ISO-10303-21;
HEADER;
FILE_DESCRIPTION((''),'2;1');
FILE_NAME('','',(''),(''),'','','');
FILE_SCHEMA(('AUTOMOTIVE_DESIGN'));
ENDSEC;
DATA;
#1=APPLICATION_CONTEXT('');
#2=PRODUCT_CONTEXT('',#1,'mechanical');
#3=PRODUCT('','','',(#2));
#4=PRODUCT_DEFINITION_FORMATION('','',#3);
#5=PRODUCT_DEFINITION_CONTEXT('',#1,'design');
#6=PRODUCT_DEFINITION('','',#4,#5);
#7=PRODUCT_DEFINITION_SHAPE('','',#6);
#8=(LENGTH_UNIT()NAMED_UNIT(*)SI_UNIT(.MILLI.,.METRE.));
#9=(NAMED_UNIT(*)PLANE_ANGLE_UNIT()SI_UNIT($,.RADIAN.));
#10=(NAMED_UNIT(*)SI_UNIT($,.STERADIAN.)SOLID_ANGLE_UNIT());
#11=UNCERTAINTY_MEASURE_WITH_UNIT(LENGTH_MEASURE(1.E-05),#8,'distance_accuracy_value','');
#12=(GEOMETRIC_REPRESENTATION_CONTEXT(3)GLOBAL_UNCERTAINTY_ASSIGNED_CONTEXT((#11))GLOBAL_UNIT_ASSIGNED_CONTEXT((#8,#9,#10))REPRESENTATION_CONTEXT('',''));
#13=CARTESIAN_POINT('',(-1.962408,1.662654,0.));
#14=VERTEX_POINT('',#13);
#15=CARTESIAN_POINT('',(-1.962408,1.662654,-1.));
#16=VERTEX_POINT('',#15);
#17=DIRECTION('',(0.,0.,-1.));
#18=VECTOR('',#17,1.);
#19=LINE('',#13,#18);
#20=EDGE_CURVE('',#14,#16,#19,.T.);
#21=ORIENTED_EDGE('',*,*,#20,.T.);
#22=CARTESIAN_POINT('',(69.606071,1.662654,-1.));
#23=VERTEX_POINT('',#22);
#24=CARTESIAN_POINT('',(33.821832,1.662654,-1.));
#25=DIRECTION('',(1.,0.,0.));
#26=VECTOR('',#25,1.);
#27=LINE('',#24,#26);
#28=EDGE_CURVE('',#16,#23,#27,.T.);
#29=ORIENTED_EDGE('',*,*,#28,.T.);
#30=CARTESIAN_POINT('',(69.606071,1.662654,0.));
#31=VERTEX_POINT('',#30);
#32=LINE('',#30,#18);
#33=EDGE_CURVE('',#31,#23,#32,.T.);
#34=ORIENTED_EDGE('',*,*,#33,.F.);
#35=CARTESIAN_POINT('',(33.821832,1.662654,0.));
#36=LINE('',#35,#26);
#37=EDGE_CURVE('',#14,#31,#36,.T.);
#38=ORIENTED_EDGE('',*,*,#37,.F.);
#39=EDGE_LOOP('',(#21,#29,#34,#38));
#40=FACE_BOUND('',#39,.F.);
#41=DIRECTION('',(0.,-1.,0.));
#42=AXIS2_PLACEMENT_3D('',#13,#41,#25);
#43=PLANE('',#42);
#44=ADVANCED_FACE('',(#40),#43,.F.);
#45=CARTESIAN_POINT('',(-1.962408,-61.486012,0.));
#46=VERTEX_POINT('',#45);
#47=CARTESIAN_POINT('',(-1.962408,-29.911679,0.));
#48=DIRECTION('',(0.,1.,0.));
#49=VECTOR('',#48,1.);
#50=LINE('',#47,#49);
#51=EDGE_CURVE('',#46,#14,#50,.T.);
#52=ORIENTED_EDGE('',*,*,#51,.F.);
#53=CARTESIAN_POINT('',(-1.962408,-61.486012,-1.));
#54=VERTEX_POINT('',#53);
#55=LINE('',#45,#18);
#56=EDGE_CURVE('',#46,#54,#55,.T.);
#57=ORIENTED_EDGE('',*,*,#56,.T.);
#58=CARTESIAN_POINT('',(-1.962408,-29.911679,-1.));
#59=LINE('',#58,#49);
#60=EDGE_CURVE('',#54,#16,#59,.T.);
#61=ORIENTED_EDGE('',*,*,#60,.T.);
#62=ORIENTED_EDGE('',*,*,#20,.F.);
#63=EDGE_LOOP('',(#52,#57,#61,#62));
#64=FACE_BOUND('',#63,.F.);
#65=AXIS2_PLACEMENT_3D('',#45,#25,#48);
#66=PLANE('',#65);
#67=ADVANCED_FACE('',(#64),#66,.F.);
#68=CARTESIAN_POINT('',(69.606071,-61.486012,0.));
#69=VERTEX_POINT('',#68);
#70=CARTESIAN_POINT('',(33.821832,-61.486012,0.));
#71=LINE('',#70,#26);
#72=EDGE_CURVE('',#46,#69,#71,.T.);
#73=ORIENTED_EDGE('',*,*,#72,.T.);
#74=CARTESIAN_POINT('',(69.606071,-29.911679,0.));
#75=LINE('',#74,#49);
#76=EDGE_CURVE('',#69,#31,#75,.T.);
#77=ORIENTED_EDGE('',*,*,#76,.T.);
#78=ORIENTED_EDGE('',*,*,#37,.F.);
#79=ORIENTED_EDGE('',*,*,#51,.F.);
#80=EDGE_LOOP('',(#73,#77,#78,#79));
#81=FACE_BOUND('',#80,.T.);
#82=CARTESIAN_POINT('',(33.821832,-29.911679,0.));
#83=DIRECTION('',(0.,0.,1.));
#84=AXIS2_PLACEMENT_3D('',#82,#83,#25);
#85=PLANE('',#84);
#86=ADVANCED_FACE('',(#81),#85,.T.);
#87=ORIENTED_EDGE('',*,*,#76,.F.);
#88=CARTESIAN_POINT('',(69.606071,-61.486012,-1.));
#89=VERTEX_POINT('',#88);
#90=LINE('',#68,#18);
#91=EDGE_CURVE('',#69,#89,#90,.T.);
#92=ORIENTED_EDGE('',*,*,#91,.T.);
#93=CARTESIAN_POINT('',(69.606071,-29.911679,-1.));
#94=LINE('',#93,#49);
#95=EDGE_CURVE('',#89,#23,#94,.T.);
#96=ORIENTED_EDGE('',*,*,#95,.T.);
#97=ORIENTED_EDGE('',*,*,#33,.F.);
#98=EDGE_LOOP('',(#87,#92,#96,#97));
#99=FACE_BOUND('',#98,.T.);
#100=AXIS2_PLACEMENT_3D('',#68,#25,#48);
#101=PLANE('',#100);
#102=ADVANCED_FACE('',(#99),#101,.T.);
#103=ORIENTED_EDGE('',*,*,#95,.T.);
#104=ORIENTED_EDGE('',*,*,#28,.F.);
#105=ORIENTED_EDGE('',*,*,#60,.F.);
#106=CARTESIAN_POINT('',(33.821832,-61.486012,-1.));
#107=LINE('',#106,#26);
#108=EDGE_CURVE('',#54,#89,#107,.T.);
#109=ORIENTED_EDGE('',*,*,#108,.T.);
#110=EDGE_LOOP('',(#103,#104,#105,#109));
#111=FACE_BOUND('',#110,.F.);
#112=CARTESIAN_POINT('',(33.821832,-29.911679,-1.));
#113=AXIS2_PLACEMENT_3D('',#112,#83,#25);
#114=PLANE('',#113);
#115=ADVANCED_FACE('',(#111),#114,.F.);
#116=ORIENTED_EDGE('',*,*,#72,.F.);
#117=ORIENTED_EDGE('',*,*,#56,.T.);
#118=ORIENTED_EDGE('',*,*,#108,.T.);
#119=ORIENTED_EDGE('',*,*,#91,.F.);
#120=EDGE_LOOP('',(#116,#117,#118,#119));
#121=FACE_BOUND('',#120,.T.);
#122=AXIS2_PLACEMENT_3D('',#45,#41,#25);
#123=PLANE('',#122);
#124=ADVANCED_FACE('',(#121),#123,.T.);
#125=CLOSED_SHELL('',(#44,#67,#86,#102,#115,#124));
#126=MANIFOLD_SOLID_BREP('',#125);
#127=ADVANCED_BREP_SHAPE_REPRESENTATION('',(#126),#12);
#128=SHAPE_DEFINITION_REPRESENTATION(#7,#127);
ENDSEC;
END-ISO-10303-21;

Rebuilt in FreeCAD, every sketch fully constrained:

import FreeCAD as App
import Part
import Sketcher
from FreeCAD import Vector
Q = App.Units.Quantity


def add_polygon(sketch, points):
    """Adds a closed chain of lines whose ends are joined by coincident constraints."""
    first, n = sketch.GeometryCount, len(points)
    for a, b in zip(points, points[1:] + points[:1]):
        sketch.addGeometry(Part.LineSegment(App.Vector(*a, 0), App.Vector(*b, 0)), False)
    for i in range(n):
        sketch.addConstraint(Sketcher.Constraint("Coincident", first + i, 2, first + (i + 1) % n, 1))

doc = App.newDocument("Part")
body = doc.addObject("PartDesign::Body", "Body")

# Sketch on XY plane
sketch1 = body.newObject("Sketcher::SketchObject", "Sketch")
sketch1.AttachmentSupport = (doc.getObject("XY_Plane"), [""])
sketch1.MapMode = "FlatFace"
add_polygon(sketch1, [(-2, 2), (-2, -61), (70, -61), (70, 2)])  # lines 0-3
sketch1.addConstraint([
    Sketcher.Constraint("Vertical", 0),
    Sketcher.Constraint("Horizontal", 1),
    Sketcher.Constraint("Vertical", 2),
    Sketcher.Constraint("Horizontal", 3),
    Sketcher.Constraint("DistanceX", 1, 1, 1, 2, Q("71.568479 mm")),
    Sketcher.Constraint("DistanceY", 0, 2, 0, 1, Q("63.148666 mm")),
    Sketcher.Constraint("DistanceX", -1, 1, 1, 2, Q("69.606071 mm")),
    Sketcher.Constraint("DistanceY", 0, 2, -1, 1, Q("61.486012 mm")),
])
pad1 = body.newObject("PartDesign::Pad", "Pad")
pad1.Profile = sketch1
pad1.Length = 1
pad1.Reversed = True

doc.recompute()
